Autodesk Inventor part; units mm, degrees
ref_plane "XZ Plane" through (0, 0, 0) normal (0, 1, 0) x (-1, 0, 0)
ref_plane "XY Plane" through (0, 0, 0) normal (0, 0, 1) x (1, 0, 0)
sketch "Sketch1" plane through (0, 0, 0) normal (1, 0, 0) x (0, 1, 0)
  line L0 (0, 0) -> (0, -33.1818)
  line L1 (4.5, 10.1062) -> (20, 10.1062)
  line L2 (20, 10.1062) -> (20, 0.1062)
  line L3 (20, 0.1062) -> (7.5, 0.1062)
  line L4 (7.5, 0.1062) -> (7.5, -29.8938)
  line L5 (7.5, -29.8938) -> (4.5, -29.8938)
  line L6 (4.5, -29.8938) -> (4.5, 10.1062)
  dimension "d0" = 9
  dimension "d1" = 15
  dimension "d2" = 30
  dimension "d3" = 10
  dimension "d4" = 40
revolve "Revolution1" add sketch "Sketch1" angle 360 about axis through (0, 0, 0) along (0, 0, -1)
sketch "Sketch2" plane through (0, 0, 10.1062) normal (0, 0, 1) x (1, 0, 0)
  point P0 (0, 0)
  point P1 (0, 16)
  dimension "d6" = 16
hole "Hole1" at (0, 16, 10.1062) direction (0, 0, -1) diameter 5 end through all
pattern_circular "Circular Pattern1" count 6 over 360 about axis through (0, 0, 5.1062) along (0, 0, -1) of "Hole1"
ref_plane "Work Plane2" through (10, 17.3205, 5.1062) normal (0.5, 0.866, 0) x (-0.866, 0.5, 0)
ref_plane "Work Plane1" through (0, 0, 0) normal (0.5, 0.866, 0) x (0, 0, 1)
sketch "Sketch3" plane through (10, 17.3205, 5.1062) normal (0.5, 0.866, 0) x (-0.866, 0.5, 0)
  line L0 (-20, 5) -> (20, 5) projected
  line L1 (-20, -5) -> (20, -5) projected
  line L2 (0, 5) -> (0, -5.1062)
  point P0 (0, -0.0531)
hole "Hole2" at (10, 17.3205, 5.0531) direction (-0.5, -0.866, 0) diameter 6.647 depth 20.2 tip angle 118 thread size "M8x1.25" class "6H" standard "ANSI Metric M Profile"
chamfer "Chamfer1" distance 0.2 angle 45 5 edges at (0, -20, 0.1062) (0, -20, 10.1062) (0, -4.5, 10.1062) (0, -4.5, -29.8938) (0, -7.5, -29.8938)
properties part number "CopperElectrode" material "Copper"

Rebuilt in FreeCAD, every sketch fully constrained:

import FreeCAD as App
import Part
import Sketcher

V = App.Vector


def edges_at(feature, points):
    """Names of the edges that pass closest to the given points."""
    edges = feature.Shape.Edges
    near = lambda p: min(range(len(edges)), key=lambda i: edges[i].distToShape(Part.Vertex(*p))[0])
    return sorted({f"Edge{near(p) + 1}" for p in points})

doc = App.newDocument("Part")
body = doc.addObject("PartDesign::Body", "Body")

# Sketch on YZ plane
sketch1 = body.newObject("Sketcher::SketchObject", "Sketch")
sketch1.AttachmentSupport = (doc.getObject("YZ_Plane"), [""])
sketch1.MapMode = "FlatFace"
sketch1.addGeometry(Part.LineSegment(V(20, 10.1, 0), V(4.5, 10.1, 0)), False)
sketch1.addGeometry(Part.LineSegment(V(4.5, 10.1, 0), V(4.5, -29.9, 0)), False)
sketch1.addGeometry(Part.LineSegment(V(4.5, -29.9, 0), V(7.5, -29.9, 0)), False)
sketch1.addGeometry(Part.LineSegment(V(7.5, -29.9, 0), V(7.5, 0.1, 0)), False)
sketch1.addGeometry(Part.LineSegment(V(7.5, 0.1, 0), V(20, 0.1, 0)), False)
sketch1.addGeometry(Part.LineSegment(V(20, 0.1, 0), V(20, 10.1, 0)), False)
sketch1.addConstraint(Sketcher.Constraint("Coincident", 0, 2, 1, 1))
sketch1.addConstraint(Sketcher.Constraint("Coincident", 1, 2, 2, 1))
sketch1.addConstraint(Sketcher.Constraint("Coincident", 2, 2, 3, 1))
sketch1.addConstraint(Sketcher.Constraint("Coincident", 3, 2, 4, 1))
sketch1.addConstraint(Sketcher.Constraint("Coincident", 4, 2, 5, 1))
sketch1.addConstraint(Sketcher.Constraint("Coincident", 5, 2, 0, 1))
sketch1.addConstraint(Sketcher.Constraint("Horizontal", 0))
sketch1.addConstraint(Sketcher.Constraint("Vertical", 1))
sketch1.addConstraint(Sketcher.Constraint("Horizontal", 2))
sketch1.addConstraint(Sketcher.Constraint("Vertical", 3))
sketch1.addConstraint(Sketcher.Constraint("Horizontal", 4))
sketch1.addConstraint(Sketcher.Constraint("Vertical", 5))
sketch1.addConstraint(Sketcher.Constraint("DistanceY", 1, 2, 1, 1, 40.0))
sketch1.addConstraint(Sketcher.Constraint("DistanceY", 3, 1, 3, 2, 30.0))
sketch1.addConstraint(Sketcher.Constraint("DistanceX", 2, 1, 2, 2, 3.0))
sketch1.addConstraint(Sketcher.Constraint("DistanceX", 0, 2, 0, 1, 15.5))
sketch1.addConstraint(Sketcher.Constraint("DistanceX", -1, 1, 4, 2, 20.0))
sketch1.addConstraint(Sketcher.Constraint("DistanceY", -1, 1, 0, 2, 10.1062))
revolution = body.newObject("PartDesign::Revolution", "Revolution")
revolution.Profile = sketch1
revolution.ReferenceAxis = (sketch1, ["V_Axis"])
revolution.Angle = 360

# Sketch on XY plane
sketch2 = body.newObject("Sketcher::SketchObject", "Sketch001")
sketch2.AttachmentSupport = (doc.getObject("XY_Plane"), [""])
sketch2.MapMode = "FlatFace"
sketch2.AttachmentOffset = App.Placement(V(0, 0, 10.1062), App.Rotation())
sketch2.addGeometry(Part.Circle(V(0, 16, 0), V(0, 0, 1), 2.5), False)
sketch2.addConstraint(Sketcher.Constraint("PointOnObject", 0, 3, -2))
sketch2.addConstraint(Sketcher.Constraint("Diameter", 0, 5.0))
sketch2.addConstraint(Sketcher.Constraint("DistanceY", -1, 1, 0, 3, 16.0))
doc.recompute()
hole = body.newObject("PartDesign::Hole", "Hole")
hole.Profile = sketch2
hole.ThreadType = "None"
hole.Diameter = 5
hole.DepthType = "ThroughAll"
doc.recompute()

polarpattern = body.newObject("PartDesign::PolarPattern", "PolarPattern")
polarpattern.Originals = [hole]
polarpattern.Axis = (doc.getObject("Z_Axis"), [""])
polarpattern.Angle = 360
polarpattern.Occurrences = 6
body.Tip = polarpattern

# Sketch on an angled plane
sketch3 = body.newObject("Sketcher::SketchObject", "Sketch002")
sketch3.Placement = App.Placement(V(9.999997, 17.320502, 0), App.Rotation(V(-0.866025404, 0.5, 0), V(0, 0, 1), V(0.5, 0.866025404, 0), "ZXY"))
sketch3.addGeometry(Part.Circle(V(0, 5.1, 0), V(0, 0, 1), 3.3), False)
sketch3.addConstraint(Sketcher.Constraint("PointOnObject", 0, 3, -2))
sketch3.addConstraint(Sketcher.Constraint("Diameter", 0, 6.647))
sketch3.addConstraint(Sketcher.Constraint("DistanceY", -1, 1, 0, 3, 5.053))
doc.recompute()
hole2 = body.newObject("PartDesign::Hole", "Hole001")
hole2.Profile = sketch3
hole2.ThreadType = "None"
hole2.Diameter = 6.647
hole2.DepthType = "Dimension"
hole2.Depth = 20.2
hole2.DrillPoint = "Angled"
hole2.DrillPointAngle = 118
doc.recompute()

chamfer = body.newObject("PartDesign::Chamfer", "Chamfer")
chamfer.Base = (hole2, edges_at(hole2, [
    (0, -20, 0.106),
    (0, -20, 10.106),
    (0, -4.5, 10.106),
    (0, -4.5, -29.894),
    (0, -7.5, -29.894),
]))
chamfer.Size = 0.2

doc.recompute()
